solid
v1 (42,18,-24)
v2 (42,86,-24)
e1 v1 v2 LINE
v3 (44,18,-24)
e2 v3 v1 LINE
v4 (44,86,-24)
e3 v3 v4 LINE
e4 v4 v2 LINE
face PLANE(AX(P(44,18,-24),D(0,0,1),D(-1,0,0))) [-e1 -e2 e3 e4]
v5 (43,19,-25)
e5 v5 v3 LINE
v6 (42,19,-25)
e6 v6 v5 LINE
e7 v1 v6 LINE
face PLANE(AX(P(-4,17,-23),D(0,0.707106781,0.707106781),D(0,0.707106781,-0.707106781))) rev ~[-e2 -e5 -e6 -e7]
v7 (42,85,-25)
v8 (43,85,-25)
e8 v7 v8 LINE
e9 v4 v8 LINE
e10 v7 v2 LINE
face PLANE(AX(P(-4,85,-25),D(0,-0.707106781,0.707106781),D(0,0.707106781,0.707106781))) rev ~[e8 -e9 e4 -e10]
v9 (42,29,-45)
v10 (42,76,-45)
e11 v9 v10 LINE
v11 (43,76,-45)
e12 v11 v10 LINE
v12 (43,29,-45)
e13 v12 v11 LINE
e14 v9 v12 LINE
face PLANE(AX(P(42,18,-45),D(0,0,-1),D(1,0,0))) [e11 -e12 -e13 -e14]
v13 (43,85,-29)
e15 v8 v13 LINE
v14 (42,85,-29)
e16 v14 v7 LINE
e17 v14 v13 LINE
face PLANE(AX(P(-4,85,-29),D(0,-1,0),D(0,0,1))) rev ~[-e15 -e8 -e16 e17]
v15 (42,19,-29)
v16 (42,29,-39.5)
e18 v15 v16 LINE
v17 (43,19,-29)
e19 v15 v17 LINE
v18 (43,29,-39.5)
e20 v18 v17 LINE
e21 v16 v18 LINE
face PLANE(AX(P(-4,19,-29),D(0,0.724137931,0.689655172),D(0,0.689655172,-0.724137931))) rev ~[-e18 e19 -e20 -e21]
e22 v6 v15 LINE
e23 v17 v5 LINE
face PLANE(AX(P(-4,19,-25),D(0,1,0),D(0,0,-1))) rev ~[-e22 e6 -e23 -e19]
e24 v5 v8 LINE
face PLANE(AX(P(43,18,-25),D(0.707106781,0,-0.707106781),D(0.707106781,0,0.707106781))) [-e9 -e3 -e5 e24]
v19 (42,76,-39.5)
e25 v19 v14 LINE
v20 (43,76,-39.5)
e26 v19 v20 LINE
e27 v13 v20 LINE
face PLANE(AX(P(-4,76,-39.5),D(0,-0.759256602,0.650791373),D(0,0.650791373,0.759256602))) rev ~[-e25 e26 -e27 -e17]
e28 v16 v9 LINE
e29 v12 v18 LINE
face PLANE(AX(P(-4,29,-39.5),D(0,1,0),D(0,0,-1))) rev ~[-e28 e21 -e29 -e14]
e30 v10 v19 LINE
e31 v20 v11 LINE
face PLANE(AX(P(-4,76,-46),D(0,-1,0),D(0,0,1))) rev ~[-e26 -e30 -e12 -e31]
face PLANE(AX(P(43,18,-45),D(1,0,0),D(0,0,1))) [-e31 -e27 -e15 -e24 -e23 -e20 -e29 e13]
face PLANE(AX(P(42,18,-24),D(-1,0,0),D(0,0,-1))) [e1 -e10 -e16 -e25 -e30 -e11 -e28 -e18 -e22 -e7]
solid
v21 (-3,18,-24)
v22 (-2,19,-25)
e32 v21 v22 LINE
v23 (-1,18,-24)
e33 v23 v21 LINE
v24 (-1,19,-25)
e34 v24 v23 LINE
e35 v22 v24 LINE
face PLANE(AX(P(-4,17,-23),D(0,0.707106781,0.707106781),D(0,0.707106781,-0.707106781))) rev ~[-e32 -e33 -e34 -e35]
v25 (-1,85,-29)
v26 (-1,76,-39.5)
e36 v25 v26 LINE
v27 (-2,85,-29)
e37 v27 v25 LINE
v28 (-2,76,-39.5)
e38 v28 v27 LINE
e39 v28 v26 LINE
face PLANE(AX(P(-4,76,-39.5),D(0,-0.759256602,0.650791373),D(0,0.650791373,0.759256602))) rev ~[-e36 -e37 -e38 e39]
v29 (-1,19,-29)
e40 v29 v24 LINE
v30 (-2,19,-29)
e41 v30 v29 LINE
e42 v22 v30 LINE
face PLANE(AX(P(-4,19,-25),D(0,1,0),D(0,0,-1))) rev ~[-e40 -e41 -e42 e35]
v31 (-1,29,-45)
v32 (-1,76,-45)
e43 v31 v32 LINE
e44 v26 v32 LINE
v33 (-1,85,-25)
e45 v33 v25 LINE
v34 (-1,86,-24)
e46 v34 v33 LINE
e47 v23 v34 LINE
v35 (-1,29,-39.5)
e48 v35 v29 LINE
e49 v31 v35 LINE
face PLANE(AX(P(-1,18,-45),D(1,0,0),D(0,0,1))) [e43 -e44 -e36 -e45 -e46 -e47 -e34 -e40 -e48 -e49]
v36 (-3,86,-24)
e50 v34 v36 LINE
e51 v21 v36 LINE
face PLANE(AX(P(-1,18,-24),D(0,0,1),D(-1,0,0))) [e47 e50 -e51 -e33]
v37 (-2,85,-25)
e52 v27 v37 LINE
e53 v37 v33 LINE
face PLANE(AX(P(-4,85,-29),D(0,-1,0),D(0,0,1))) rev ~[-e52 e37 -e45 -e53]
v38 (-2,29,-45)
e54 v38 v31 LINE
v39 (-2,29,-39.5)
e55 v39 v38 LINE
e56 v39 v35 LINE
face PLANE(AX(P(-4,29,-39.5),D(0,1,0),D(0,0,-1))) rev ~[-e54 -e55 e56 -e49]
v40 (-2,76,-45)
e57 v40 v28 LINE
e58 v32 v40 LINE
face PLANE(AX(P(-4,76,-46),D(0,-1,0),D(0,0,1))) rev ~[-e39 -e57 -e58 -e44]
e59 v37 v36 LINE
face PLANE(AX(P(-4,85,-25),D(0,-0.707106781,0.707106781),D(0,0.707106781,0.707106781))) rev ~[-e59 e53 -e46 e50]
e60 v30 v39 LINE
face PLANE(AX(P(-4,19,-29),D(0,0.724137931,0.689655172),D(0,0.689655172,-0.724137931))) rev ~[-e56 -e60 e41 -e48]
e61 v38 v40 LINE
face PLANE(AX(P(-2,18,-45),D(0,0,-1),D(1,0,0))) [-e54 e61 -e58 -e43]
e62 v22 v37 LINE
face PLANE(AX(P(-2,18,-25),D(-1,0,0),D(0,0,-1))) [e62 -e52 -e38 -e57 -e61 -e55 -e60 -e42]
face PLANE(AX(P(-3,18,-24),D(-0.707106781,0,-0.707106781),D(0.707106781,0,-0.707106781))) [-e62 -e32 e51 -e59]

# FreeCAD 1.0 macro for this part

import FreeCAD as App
import Part
import Sketcher
from FreeCAD import Vector


def add_polygon(sketch, points):
    """Adds a closed chain of lines whose ends are joined by coincident constraints."""
    first, n = sketch.GeometryCount, len(points)
    for a, b in zip(points, points[1:] + points[:1]):
        sketch.addGeometry(Part.LineSegment(App.Vector(*a, 0), App.Vector(*b, 0)), False)
    for i in range(n):
        sketch.addConstraint(Sketcher.Constraint("Coincident", first + i, 2, first + (i + 1) % n, 1))

doc = App.newDocument("Part")
body = doc.addObject("PartDesign::Body", "Body")
body.AllowCompound = True

sketch1 = body.newObject("Sketcher::SketchObject", "Sketch")
sketch1.AttachmentSupport = (doc.getObject("YZ_Plane"), [""])
sketch1.MapMode = "FlatFace"
sketch1.AttachmentOffset = App.Placement(Vector(0, 0, -4), App.Rotation())
add_polygon(sketch1, [(19, -25), (17, -23), (17, -46), (29, -46), (29, -39.5), (19, -29)])
add_polygon(sketch1, [(76, -39.5), (76, -46), (87, -46), (87, -23), (85, -25), (85, -29)])
sketch1.addConstraint([
    Sketcher.Constraint("Vertical", 1),
    Sketcher.Constraint("Horizontal", 2),
    Sketcher.Constraint("Vertical", 3),
    Sketcher.Constraint("Vertical", 5),
    Sketcher.Constraint("Vertical", 6),
    Sketcher.Constraint("Horizontal", 7),
    Sketcher.Constraint("Vertical", 8),
    Sketcher.Constraint("Vertical", 10),
    Sketcher.Constraint("Perpendicular", 0, 9),
    Sketcher.Constraint("Horizontal", 2, 2, 6, 2),
    Sketcher.Constraint("Horizontal", 0, 2, 8, 2),
    Sketcher.Constraint("Horizontal", 5, 2, 9, 2),
    Sketcher.Constraint("Horizontal", 4, 2, 10, 2),
    Sketcher.Constraint("Horizontal", 3, 2, 11, 2),
    Sketcher.Constraint("Equal", 0, 9),
    Sketcher.Constraint("DistanceX", 2, 1, 2, 2, 12.0),
    Sketcher.Constraint("DistanceX", 7, 1, 7, 2, 11.0),
    Sketcher.Constraint("DistanceY", 1, 2, 1, 1, 23.0),
    Sketcher.Constraint("DistanceY", 5, 1, 5, 2, 4.0),
    Sketcher.Constraint("DistanceY", 3, 1, 3, 2, 6.5),
    Sketcher.Constraint("DistanceX", -1, 1, 0, 2, 17.0),
    Sketcher.Constraint("DistanceY", 0, 2, -1, 1, 23.0),
    Sketcher.Constraint("DistanceX", -1, 1, 4, 2, 19.0),
    Sketcher.Constraint("DistanceX", -1, 1, 6, 2, 76.0),
])
pad1 = body.newObject("PartDesign::Pad", "Pad")
pad1.Profile = sketch1
pad1.Length = 50
body2 = doc.addObject("PartDesign::Body", "Body001")
body2.AllowCompound = True

sketch2 = body2.newObject("Sketcher::SketchObject", "Sketch001")
sketch2.AttachmentSupport = (doc.getObject("XZ_Plane001"), [""])
sketch2.MapMode = "FlatFace"
sketch2.AttachmentOffset = App.Placement(Vector(0, 0, -18), App.Rotation())
add_polygon(sketch2, [(-1, -45), (-1, -24), (-3, -24), (-2, -25), (-2, -45)])
add_polygon(sketch2, [(42, -24), (42, -45), (43, -45), (43, -25), (44, -24)])
sketch2.addConstraint([
    Sketcher.Constraint("Vertical", 0),
    Sketcher.Constraint("Horizontal", 1),
    Sketcher.Constraint("Vertical", 3),
    Sketcher.Constraint("Horizontal", 4),
    Sketcher.Constraint("Vertical", 5),
    Sketcher.Constraint("Horizontal", 6),
    Sketcher.Constraint("Vertical", 7),
    Sketcher.Constraint("Horizontal", 9),
    Sketcher.Constraint("Perpendicular", 2, 8),
    Sketcher.Constraint("Horizontal", 4, 2, 5, 2),
    Sketcher.Constraint("Horizontal", 2, 2, 7, 2),
    Sketcher.Constraint("Horizontal", 1, 2, 8, 2),
    Sketcher.Constraint("Equal", 4, 6),
    Sketcher.Constraint("Equal", 1, 9),
    Sketcher.Constraint("DistanceX", 1, 2, 1, 1, 2.0),
    Sketcher.Constraint("DistanceX", 4, 1, 4, 2, 1.0),
    Sketcher.Constraint("DistanceY", 0, 1, 0, 2, 21.0),
    Sketcher.Constraint("DistanceX", 0, 2, -1, 1, 1.0),
    Sketcher.Constraint("DistanceY", 0, 2, -1, 1, 24.0),
    Sketcher.Constraint("DistanceX", -1, 1, 5, 2, 42.0),
])
pad2 = body2.newObject("PartDesign::Pad", "Pad001")
pad2.Profile = sketch2
pad2.Length = 68
pad2.Reversed = True
doc.recompute()

boolean = body2.newObject("PartDesign::Boolean", "Boolean")
boolean.Type = "Cut"
boolean.addObjects([body])

doc.recompute()
